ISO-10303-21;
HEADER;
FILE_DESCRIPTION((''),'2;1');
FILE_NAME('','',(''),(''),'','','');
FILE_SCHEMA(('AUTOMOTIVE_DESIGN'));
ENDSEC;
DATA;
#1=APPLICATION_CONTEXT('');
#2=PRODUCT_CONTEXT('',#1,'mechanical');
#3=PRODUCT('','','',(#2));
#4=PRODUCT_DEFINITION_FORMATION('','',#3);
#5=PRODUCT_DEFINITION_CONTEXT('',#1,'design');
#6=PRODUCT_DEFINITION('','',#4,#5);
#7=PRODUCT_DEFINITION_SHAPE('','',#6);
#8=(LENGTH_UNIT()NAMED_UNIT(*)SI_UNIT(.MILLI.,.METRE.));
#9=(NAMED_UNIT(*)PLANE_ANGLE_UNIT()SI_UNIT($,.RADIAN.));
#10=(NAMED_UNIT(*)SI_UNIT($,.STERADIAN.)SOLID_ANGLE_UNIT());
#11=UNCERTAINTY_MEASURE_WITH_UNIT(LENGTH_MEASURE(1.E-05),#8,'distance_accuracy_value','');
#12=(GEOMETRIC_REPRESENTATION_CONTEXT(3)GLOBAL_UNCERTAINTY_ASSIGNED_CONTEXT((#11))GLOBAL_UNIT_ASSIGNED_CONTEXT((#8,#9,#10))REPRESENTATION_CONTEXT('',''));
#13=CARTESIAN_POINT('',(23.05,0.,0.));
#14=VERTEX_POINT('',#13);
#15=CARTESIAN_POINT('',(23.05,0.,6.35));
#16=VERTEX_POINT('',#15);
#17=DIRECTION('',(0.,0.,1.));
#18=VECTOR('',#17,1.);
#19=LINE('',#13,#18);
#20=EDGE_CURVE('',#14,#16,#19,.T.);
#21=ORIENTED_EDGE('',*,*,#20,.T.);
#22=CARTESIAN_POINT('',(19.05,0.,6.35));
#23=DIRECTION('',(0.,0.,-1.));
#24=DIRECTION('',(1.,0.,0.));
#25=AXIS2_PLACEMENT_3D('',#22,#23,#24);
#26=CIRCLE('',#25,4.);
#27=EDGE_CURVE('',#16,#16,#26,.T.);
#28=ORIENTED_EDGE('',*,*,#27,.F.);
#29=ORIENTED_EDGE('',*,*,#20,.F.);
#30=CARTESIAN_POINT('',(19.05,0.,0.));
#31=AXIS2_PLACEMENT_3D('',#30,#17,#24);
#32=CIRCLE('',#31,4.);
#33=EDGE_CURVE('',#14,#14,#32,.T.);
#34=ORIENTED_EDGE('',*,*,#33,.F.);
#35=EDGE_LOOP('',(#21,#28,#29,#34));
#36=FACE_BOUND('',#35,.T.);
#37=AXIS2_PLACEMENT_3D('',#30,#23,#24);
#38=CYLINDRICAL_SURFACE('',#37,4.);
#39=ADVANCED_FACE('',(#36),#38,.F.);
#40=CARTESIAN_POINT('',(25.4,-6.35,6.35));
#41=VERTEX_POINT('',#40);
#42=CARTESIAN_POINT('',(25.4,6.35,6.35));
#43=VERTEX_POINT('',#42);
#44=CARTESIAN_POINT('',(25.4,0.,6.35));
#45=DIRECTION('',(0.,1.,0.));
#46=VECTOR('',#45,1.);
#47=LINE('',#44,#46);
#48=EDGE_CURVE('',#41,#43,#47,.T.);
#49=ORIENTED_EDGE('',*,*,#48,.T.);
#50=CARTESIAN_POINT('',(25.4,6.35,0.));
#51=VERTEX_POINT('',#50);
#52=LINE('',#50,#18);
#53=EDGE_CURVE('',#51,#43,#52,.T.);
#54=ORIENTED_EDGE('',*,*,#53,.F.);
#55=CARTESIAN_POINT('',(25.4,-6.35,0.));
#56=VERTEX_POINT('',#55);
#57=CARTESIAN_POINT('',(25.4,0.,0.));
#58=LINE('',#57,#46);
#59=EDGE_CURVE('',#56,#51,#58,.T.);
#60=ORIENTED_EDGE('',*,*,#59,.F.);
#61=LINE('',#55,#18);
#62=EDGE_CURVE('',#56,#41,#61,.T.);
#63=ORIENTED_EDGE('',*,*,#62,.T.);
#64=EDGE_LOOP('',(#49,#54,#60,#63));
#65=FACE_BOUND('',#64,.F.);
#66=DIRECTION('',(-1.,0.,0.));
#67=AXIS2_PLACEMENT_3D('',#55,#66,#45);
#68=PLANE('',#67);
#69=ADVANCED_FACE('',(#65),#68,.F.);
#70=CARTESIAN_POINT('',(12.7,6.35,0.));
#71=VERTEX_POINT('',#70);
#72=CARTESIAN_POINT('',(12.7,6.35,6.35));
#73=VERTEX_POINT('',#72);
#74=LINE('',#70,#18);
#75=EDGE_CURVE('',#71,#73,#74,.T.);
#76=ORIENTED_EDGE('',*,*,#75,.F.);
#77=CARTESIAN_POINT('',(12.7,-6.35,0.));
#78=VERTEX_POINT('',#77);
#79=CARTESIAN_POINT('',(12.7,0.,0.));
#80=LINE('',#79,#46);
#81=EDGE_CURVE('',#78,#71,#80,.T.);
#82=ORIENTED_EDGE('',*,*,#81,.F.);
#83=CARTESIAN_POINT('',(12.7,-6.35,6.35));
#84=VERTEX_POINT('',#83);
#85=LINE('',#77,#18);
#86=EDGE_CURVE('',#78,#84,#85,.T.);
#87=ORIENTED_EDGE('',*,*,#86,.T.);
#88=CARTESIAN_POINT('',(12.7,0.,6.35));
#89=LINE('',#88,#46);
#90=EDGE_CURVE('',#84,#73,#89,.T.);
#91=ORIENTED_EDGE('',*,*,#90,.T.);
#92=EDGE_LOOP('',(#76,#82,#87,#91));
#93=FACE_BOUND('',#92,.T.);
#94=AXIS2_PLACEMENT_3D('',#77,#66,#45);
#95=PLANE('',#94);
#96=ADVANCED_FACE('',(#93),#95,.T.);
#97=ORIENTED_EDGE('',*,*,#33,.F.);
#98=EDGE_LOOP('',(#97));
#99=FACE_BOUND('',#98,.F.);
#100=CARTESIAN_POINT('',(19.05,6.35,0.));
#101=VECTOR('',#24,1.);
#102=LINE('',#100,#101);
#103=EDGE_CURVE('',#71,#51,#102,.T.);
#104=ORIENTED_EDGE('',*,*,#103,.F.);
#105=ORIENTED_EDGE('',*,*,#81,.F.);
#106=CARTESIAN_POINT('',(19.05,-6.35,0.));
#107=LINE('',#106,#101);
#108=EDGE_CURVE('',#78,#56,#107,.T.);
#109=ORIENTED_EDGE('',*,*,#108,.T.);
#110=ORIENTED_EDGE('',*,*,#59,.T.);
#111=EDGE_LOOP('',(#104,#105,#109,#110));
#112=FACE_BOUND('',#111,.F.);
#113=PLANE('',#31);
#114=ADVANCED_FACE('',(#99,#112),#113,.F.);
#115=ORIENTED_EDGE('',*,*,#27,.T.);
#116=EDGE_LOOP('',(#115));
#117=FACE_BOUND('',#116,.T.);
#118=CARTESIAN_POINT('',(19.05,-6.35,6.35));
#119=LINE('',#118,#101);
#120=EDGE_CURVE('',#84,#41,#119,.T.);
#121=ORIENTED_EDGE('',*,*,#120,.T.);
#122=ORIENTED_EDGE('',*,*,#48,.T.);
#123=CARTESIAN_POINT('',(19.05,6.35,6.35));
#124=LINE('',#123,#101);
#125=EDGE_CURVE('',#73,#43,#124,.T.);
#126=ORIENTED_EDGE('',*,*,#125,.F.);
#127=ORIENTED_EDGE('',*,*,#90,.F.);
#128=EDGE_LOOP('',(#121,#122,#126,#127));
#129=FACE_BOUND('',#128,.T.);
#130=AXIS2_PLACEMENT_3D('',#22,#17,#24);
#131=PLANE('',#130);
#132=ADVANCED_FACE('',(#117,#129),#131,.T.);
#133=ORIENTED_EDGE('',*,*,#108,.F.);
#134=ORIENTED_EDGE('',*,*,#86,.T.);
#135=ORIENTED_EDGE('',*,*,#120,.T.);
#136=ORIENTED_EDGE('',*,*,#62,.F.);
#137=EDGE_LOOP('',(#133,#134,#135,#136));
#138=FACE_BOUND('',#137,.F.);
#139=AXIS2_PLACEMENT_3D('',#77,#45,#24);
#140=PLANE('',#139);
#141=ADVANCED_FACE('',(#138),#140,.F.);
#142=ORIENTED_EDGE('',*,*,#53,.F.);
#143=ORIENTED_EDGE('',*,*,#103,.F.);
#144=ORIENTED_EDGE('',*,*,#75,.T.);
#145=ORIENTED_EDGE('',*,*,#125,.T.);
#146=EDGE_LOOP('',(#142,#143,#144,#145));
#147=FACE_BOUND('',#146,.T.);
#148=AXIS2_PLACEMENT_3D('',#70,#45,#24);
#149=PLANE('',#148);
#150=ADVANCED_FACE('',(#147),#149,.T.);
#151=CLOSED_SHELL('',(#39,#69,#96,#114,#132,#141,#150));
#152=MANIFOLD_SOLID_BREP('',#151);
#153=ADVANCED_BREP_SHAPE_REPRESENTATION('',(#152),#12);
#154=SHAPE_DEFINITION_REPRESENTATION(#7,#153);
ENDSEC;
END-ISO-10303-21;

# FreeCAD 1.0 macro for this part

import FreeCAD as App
import Part
import Sketcher
Q = App.Units.Quantity

doc = App.newDocument("Part")
params = doc.addObject("Spreadsheet::Sheet", "Params")
for row, (alias, value) in enumerate([
    ("sketch1_diameter", "8 mm"),
    ("pad1_length", "10 mm"),
    ("sketch2_width", "12.7 mm"),
    ("pad2_length", "6.35 mm"),
], start=1):
    params.set(f"A{row}", alias)
    params.set(f"B{row}", "=" + value)
    params.setAlias(f"B{row}", alias)

body = doc.addObject("PartDesign::Body", "Body")

# Sketch on XY plane
sketch1 = doc.addObject("Sketcher::SketchObject", "Sketch")
body.addObject(sketch1)
sketch1.AttachmentSupport = (doc.XY_Plane, [""])
sketch1.MapMode = "FlatFace"
sketch1.addGeometry(Part.Circle(App.Vector(6.35, 6.35, 0), App.Vector(0, 0, 1), 4), False)
sketch1.addConstraint(Sketcher.Constraint("Diameter", 0, Q("8 mm")))
sketch1.addConstraint(Sketcher.Constraint("DistanceX", -1, 1, 0, 3, Q("6.35 mm")))
sketch1.addConstraint(Sketcher.Constraint("DistanceY", -1, 1, 0, 3, Q("6.35 mm")))
sketch1.setExpression("Constraints[0]", "Params.sketch1_diameter")
pad1 = doc.addObject("PartDesign::Pad", "Pad")
body.addObject(pad1)
pad1.Profile = sketch1
pad1.setExpression("Length", "Params.pad1_length")
body2 = doc.addObject("PartDesign::Body", "Body001")

# Sketch on XY plane
sketch2 = doc.addObject("Sketcher::SketchObject", "Sketch001")
body2.addObject(sketch2)
sketch2.AttachmentSupport = (doc.getObject("XY_Plane001"), [""])
sketch2.MapMode = "FlatFace"
sketch2.addGeometry(Part.LineSegment(App.Vector(0, 12.7, 0), App.Vector(0, 0, 0)), False)
sketch2.addGeometry(Part.LineSegment(App.Vector(0, 0, 0), App.Vector(12.7, 0, 0)), False)
sketch2.addGeometry(Part.LineSegment(App.Vector(12.7, 0, 0), App.Vector(12.7, 12.7, 0)), False)
sketch2.addGeometry(Part.LineSegment(App.Vector(12.7, 12.7, 0), App.Vector(0, 12.7, 0)), False)
sketch2.addConstraint(Sketcher.Constraint("Coincident", 0, 2, 1, 1))
sketch2.addConstraint(Sketcher.Constraint("Coincident", 1, 2, 2, 1))
sketch2.addConstraint(Sketcher.Constraint("Coincident", 2, 2, 3, 1))
sketch2.addConstraint(Sketcher.Constraint("Coincident", 3, 2, 0, 1))
sketch2.addConstraint(Sketcher.Constraint("Vertical", 0))
sketch2.addConstraint(Sketcher.Constraint("Horizontal", 1))
sketch2.addConstraint(Sketcher.Constraint("Vertical", 2))
sketch2.addConstraint(Sketcher.Constraint("Horizontal", 3))
sketch2.addConstraint(Sketcher.Constraint("Coincident", 0, 2, -1, 1))
sketch2.addConstraint(Sketcher.Constraint("Equal", 3, 0))
sketch2.addConstraint(Sketcher.Constraint("DistanceX", 1, 1, 1, 2, Q("12.7 mm")))
sketch2.setExpression("Constraints[10]", "Params.sketch2_width")
pad2 = doc.addObject("PartDesign::Pad", "Pad001")
body2.addObject(pad2)
pad2.Profile = sketch2
pad2.setExpression("Length", "Params.pad2_length")
doc.recompute()

boolean = doc.addObject("PartDesign::Boolean", "Boolean")
body2.addObject(boolean)
boolean.Type = "Cut"
boolean.addObjects([body])
body3 = doc.addObject("PartDesign::Body", "Body002")
doc.recompute()

body2.Placement = App.Placement(App.Vector(12.7, -6.35, 0), App.Rotation(App.Vector(0, 0, 1), 0))
boolean2 = doc.addObject("PartDesign::Boolean", "Boolean001")
body3.addObject(boolean2)
boolean2.Type = "Fuse"
boolean2.addObjects([body2])

doc.recompute()
